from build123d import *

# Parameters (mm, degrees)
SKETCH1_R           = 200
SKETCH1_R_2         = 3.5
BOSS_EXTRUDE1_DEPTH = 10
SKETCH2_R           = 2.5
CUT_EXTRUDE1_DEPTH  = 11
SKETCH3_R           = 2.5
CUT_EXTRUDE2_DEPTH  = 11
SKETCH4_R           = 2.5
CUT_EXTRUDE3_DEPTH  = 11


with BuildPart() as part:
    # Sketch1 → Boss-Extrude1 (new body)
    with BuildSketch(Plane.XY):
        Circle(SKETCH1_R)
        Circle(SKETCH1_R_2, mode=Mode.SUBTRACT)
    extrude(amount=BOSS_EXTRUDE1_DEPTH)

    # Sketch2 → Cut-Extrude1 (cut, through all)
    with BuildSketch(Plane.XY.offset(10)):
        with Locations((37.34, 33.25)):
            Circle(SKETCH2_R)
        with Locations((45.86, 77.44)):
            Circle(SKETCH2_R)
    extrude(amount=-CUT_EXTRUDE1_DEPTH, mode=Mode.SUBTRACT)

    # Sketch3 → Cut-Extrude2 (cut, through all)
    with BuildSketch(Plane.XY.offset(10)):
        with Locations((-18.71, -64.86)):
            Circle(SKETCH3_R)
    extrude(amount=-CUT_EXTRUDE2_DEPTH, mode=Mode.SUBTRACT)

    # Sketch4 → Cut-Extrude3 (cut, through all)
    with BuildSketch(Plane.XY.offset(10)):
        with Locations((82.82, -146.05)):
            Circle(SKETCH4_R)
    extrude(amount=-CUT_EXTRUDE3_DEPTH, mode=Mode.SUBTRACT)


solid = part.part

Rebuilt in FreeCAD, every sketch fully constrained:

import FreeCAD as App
import Part
import Sketcher

V = App.Vector

doc = App.newDocument("Part")
params = doc.addObject("Spreadsheet::Sheet", "Params")
for row, (alias, value) in enumerate([
    ("sketch1_diameter", "400 mm"),
    ("sketch1_diameter2", "7 mm"),
    ("pad1_length", "10 mm"),
    ("sketch2_diameter", "5 mm"),
    ("sketch3_diameter", "5 mm"),
    ("sketch4_diameter", "5 mm"),
], start=1):
    params.set(f"A{row}", alias)
    params.set(f"B{row}", "=" + value)
    params.setAlias(f"B{row}", alias)

body = doc.addObject("PartDesign::Body", "Body")

# Sketch on XY plane
sketch1 = body.newObject("Sketcher::SketchObject", "Sketch")
sketch1.AttachmentSupport = (doc.getObject("XY_Plane"), [""])
sketch1.MapMode = "FlatFace"
sketch1.addGeometry([
    Part.Circle(V(0, 0, 0), V(0, 0, 1), 200),
    Part.Circle(V(0, 0, 0), V(0, 0, 1), 3.5),
], False)
sketch1.addConstraint([
    Sketcher.Constraint("Coincident", 0, 3, -1, 1),
    Sketcher.Constraint("Coincident", 1, 3, -1, 1),
    Sketcher.Constraint("Diameter", 0, 400.0),
    Sketcher.Constraint("Diameter", 1, 7.0),
])
sketch1.setExpression("Constraints[2]", "Params.sketch1_diameter")
sketch1.setExpression("Constraints[3]", "Params.sketch1_diameter2")
pad1 = body.newObject("PartDesign::Pad", "Pad")
pad1.Profile = sketch1
pad1.setExpression("Length", "Params.pad1_length")

# Sketch on XY plane
sketch2 = body.newObject("Sketcher::SketchObject", "Sketch001")
sketch2.AttachmentSupport = (doc.getObject("XY_Plane"), [""])
sketch2.MapMode = "FlatFace"
sketch2.AttachmentOffset = App.Placement(V(0, 0, 10), App.Rotation())
sketch2.addGeometry([
    Part.Circle(V(37.3, 33.2, 0), V(0, 0, 1), 2.5),
    Part.Circle(V(45.9, 77.4, 0), V(0, 0, 1), 2.5),
], False)
sketch2.addConstraint([
    Sketcher.Constraint("Equal", 0, 1),
    Sketcher.Constraint("Diameter", 0, 5.0),
    Sketcher.Constraint("DistanceX", -1, 1, 0, 3, 37.34),
    Sketcher.Constraint("DistanceY", -1, 1, 0, 3, 33.25),
    Sketcher.Constraint("DistanceX", -1, 1, 1, 3, 45.86),
    Sketcher.Constraint("DistanceY", -1, 1, 1, 3, 77.44),
])
sketch2.setExpression("Constraints[1]", "Params.sketch2_diameter")
pocket1 = body.newObject("PartDesign::Pocket", "Pocket")
pocket1.Profile = sketch2
pocket1.Type = "ThroughAll"

# Sketch on XY plane
sketch3 = body.newObject("Sketcher::SketchObject", "Sketch002")
sketch3.AttachmentSupport = (doc.getObject("XY_Plane"), [""])
sketch3.MapMode = "FlatFace"
sketch3.AttachmentOffset = App.Placement(V(0, 0, 10), App.Rotation())
sketch3.addGeometry(Part.Circle(V(-18.7, -64.9, 0), V(0, 0, 1), 2.5), False)
sketch3.addConstraint([
    Sketcher.Constraint("Diameter", 0, 5.0),
    Sketcher.Constraint("DistanceX", 0, 3, -1, 1, 18.71),
    Sketcher.Constraint("DistanceY", 0, 3, -1, 1, 64.86),
])
sketch3.setExpression("Constraints[0]", "Params.sketch3_diameter")
pocket2 = body.newObject("PartDesign::Pocket", "Pocket001")
pocket2.Profile = sketch3
pocket2.Type = "ThroughAll"

# Sketch on XY plane
sketch4 = body.newObject("Sketcher::SketchObject", "Sketch003")
sketch4.AttachmentSupport = (doc.getObject("XY_Plane"), [""])
sketch4.MapMode = "FlatFace"
sketch4.AttachmentOffset = App.Placement(V(0, 0, 10), App.Rotation())
sketch4.addGeometry(Part.Circle(V(82.8, -146.1, 0), V(0, 0, 1), 2.5), False)
sketch4.addConstraint([
    Sketcher.Constraint("Diameter", 0, 5.0),
    Sketcher.Constraint("DistanceX", -1, 1, 0, 3, 82.82),
    Sketcher.Constraint("DistanceY", 0, 3, -1, 1, 146.05),
])
sketch4.setExpression("Constraints[0]", "Params.sketch4_diameter")
pocket3 = body.newObject("PartDesign::Pocket", "Pocket002")
pocket3.Profile = sketch4
pocket3.Type = "ThroughAll"

doc.recompute()
